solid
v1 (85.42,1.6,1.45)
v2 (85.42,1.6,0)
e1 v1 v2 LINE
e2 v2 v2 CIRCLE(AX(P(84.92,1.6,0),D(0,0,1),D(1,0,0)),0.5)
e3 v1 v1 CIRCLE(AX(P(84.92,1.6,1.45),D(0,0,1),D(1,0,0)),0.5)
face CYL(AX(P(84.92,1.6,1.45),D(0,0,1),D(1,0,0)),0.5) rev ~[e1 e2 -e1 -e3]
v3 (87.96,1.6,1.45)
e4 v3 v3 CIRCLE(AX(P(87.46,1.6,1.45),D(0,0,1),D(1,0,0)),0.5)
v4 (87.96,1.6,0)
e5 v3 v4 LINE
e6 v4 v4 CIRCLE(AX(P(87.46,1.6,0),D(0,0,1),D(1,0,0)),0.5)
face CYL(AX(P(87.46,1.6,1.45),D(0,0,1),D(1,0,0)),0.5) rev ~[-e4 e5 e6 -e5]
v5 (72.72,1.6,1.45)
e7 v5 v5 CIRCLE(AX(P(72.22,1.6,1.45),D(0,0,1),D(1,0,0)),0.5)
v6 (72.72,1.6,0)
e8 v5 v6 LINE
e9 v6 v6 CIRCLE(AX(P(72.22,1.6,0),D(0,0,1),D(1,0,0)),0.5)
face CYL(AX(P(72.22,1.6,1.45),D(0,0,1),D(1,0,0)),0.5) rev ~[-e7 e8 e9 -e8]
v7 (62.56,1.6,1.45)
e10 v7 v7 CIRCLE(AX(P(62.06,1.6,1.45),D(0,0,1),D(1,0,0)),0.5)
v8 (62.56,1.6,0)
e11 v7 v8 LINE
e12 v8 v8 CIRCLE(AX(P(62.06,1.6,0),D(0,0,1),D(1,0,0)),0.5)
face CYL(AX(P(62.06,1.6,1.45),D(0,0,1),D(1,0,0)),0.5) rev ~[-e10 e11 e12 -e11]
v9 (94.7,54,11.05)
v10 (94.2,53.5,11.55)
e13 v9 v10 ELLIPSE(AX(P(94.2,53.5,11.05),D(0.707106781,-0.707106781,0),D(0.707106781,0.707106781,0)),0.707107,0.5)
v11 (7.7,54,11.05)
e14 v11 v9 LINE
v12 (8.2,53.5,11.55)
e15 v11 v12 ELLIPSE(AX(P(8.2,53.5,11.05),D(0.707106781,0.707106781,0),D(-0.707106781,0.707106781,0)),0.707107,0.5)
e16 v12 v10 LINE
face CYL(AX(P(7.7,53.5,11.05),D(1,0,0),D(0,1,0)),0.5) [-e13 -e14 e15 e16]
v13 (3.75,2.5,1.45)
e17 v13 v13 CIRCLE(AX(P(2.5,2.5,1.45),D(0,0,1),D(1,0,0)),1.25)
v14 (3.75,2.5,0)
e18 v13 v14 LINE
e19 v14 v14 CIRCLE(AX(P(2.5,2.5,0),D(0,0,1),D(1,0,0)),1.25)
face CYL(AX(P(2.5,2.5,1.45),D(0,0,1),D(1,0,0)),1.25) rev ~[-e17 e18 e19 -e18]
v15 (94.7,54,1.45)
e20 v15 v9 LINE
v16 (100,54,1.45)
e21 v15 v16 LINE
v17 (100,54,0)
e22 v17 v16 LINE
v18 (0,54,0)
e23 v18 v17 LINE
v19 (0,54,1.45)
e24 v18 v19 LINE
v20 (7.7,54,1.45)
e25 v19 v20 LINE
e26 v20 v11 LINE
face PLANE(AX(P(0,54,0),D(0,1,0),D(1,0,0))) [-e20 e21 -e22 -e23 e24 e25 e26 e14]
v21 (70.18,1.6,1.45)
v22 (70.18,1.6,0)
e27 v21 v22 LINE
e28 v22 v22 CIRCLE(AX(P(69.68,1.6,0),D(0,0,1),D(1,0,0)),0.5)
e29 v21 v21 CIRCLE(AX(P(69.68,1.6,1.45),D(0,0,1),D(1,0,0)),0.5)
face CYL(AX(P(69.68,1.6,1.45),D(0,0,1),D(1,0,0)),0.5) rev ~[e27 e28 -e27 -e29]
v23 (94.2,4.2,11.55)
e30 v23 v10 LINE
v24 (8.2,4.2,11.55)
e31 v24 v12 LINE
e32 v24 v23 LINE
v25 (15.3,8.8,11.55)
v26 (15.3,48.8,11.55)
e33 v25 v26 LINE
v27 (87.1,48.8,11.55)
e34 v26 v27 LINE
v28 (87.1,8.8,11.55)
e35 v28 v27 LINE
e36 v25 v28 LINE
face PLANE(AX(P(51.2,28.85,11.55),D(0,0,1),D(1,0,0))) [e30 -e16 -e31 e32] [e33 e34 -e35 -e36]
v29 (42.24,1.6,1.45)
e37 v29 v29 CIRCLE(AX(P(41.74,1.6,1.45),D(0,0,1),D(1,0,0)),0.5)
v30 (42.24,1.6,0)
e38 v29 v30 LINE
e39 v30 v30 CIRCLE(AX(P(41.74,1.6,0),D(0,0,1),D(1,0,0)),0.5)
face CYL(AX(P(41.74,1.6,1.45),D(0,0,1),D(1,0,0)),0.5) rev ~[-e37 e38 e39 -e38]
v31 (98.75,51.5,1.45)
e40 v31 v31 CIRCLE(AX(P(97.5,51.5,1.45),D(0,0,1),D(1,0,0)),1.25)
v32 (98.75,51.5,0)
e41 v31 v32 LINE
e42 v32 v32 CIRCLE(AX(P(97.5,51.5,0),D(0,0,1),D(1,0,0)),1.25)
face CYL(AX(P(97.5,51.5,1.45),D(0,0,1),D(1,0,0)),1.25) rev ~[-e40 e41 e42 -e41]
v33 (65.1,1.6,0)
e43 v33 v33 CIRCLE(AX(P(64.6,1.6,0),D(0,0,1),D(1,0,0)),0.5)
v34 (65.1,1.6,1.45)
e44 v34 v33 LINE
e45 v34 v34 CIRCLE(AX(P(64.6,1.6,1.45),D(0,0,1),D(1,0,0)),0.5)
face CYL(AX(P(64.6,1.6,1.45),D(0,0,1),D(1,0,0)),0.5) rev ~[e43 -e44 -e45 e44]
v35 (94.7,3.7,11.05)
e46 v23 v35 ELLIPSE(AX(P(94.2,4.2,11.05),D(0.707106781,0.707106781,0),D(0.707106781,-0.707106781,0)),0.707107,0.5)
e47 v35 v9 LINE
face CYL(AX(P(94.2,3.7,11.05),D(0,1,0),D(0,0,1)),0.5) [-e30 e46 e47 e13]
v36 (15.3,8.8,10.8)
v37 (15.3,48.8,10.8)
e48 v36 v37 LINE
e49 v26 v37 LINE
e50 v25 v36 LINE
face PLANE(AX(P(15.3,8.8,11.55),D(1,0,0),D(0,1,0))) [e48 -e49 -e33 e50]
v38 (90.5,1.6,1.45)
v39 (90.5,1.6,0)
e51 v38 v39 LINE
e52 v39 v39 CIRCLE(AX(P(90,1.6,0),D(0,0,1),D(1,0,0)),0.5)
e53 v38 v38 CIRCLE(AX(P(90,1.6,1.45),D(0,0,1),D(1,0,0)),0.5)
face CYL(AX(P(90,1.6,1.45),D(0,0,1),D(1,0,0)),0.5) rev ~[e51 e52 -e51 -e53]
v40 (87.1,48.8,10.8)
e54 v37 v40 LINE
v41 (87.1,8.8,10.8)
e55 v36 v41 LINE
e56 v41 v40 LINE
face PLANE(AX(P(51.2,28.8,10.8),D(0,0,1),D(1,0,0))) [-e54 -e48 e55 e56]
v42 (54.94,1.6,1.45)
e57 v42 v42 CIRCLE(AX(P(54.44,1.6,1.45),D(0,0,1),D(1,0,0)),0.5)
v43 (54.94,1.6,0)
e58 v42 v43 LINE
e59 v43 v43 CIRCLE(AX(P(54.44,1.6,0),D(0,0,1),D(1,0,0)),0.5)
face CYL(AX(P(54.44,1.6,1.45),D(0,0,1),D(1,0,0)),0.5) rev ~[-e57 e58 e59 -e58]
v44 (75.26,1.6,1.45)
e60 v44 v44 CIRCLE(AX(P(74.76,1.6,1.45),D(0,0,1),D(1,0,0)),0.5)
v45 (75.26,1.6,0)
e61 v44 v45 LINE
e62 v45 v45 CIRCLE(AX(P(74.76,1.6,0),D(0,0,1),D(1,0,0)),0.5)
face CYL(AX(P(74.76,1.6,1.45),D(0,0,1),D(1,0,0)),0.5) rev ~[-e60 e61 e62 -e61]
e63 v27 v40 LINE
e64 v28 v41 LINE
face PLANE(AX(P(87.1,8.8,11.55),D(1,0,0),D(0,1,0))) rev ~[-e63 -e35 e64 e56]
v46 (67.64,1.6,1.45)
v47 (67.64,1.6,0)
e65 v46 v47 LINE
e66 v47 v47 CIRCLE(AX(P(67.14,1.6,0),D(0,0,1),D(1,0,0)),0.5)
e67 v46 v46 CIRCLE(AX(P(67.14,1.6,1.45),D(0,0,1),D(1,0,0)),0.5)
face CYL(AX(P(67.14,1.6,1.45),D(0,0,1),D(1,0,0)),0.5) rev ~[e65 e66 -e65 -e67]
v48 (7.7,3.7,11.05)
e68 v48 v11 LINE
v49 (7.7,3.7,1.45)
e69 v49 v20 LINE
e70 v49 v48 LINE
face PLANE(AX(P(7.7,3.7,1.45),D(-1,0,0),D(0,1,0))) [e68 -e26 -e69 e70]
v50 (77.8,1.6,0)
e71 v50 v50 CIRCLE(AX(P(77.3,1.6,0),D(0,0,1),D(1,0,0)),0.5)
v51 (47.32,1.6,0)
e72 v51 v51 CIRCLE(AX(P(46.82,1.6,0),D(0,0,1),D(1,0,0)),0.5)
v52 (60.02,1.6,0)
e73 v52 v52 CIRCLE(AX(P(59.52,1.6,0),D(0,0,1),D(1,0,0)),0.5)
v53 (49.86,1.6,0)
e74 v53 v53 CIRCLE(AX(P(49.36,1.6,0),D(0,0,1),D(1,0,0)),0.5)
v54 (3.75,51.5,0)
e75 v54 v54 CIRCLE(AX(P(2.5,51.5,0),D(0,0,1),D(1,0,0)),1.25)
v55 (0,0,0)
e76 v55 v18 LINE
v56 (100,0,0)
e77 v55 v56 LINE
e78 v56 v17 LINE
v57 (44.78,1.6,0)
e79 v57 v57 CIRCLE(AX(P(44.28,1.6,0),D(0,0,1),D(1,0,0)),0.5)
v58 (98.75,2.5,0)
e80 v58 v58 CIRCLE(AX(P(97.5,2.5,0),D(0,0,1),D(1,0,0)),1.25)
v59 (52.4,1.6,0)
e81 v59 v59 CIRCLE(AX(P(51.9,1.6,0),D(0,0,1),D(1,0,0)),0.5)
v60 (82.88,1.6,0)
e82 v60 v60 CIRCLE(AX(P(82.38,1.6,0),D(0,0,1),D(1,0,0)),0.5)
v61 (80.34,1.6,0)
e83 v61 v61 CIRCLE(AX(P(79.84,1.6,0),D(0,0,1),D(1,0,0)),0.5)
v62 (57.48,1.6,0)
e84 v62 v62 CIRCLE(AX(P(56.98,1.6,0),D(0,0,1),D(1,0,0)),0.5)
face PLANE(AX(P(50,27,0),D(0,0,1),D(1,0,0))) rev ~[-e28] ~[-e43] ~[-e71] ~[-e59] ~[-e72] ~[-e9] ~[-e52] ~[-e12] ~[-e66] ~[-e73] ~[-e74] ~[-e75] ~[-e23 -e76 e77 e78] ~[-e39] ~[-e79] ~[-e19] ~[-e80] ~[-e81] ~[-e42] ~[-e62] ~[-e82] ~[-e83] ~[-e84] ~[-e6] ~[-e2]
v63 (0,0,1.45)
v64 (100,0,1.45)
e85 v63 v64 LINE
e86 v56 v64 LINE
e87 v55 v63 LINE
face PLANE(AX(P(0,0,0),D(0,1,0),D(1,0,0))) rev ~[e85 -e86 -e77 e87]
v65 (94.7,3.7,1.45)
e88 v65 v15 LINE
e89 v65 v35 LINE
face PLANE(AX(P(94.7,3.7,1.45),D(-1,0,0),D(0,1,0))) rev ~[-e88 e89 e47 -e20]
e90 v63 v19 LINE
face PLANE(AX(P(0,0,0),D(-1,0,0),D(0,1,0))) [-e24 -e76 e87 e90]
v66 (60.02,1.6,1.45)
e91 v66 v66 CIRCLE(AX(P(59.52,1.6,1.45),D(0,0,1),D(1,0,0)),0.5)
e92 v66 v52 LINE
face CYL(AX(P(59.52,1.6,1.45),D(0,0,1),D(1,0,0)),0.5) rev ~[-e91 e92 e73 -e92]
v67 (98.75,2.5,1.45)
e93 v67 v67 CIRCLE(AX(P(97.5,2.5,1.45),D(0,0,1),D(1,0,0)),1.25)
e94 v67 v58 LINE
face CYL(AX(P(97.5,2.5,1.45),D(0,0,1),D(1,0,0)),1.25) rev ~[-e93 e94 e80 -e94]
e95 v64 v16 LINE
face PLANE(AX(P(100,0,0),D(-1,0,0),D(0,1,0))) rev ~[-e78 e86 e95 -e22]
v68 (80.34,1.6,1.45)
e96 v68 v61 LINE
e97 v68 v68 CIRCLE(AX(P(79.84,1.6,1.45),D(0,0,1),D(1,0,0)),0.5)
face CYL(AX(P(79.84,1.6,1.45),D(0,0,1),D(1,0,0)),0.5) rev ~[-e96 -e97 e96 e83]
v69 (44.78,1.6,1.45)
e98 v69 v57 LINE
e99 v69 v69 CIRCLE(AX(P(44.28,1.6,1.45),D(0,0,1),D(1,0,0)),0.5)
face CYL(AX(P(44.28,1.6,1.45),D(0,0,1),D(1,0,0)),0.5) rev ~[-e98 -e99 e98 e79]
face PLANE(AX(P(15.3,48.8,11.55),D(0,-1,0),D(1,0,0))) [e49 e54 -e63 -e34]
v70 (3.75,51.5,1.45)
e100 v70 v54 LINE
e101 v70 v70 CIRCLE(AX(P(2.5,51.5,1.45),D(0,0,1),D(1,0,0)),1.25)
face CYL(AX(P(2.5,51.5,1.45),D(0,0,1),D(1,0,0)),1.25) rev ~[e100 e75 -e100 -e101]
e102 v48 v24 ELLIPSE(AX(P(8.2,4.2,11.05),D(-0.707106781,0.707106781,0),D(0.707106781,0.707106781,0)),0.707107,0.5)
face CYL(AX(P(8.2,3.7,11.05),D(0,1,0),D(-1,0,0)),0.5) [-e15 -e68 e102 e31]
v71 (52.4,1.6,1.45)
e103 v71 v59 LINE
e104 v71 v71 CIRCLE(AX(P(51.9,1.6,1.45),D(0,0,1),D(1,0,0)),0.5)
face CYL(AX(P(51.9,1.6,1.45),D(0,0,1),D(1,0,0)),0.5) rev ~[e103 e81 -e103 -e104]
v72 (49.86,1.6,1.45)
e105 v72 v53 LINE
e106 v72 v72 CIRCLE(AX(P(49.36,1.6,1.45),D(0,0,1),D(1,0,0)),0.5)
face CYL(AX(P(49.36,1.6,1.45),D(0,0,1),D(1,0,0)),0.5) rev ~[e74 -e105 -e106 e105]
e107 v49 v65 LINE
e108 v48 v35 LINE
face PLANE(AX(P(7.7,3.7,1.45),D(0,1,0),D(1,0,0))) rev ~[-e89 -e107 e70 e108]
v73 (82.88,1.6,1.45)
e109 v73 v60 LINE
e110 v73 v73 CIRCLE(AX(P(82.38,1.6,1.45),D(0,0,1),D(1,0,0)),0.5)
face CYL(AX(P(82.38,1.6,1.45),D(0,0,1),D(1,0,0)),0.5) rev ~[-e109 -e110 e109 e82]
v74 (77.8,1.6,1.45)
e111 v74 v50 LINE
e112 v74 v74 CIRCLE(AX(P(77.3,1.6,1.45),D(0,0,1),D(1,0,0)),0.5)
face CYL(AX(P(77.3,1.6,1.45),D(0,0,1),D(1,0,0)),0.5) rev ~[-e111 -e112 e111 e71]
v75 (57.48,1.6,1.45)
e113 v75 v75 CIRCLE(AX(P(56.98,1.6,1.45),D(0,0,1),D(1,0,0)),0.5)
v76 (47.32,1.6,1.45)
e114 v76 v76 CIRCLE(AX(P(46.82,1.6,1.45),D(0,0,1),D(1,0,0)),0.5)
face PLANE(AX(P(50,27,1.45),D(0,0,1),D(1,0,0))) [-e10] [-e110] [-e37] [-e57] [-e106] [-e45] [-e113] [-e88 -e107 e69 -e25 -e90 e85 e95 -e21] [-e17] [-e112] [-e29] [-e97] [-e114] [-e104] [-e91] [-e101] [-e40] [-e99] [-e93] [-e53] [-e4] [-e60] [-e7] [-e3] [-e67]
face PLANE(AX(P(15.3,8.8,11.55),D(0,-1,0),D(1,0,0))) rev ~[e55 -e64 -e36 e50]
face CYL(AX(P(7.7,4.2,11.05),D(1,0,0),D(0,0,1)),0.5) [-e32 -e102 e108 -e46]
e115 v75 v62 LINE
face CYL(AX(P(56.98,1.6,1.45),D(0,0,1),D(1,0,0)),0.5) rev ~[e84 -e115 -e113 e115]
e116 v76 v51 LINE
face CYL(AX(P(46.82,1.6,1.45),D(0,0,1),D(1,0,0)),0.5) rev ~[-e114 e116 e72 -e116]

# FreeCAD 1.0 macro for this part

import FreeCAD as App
import Part
import Sketcher
Q = App.Units.Quantity


def edges_at(feature, points):
    """Names of the edges that pass closest to the given points."""
    edges = feature.Shape.Edges
    near = lambda p: min(range(len(edges)), key=lambda i: edges[i].distToShape(Part.Vertex(*p))[0])
    return sorted({f"Edge{near(p) + 1}" for p in points})

doc = App.newDocument("Part")
body = doc.addObject("PartDesign::Body", "Body")

sketch1 = doc.addObject("Sketcher::SketchObject", "Sketch")
body.addObject(sketch1)
sketch1.AttachmentSupport = (doc.XY_Plane, [""])
sketch1.MapMode = "FlatFace"
sketch1.addGeometry([
    Part.LineSegment(App.Vector(0, 54, 0), App.Vector(0, 0, 0)),
    Part.LineSegment(App.Vector(0, 0, 0), App.Vector(100, 0, 0)),
    Part.LineSegment(App.Vector(100, 0, 0), App.Vector(100, 54, 0)),
    Part.LineSegment(App.Vector(100, 54, 0), App.Vector(0, 54, 0)),
], False)
sketch1.addConstraint([
    Sketcher.Constraint("Coincident", 0, 2, 1, 1),
    Sketcher.Constraint("Coincident", 1, 2, 2, 1),
    Sketcher.Constraint("Coincident", 2, 2, 3, 1),
    Sketcher.Constraint("Coincident", 3, 2, 0, 1),
    Sketcher.Constraint("Vertical", 0),
    Sketcher.Constraint("Horizontal", 1),
    Sketcher.Constraint("Vertical", 2),
    Sketcher.Constraint("Horizontal", 3),
    Sketcher.Constraint("Coincident", 0, 2, -1, 1),
    Sketcher.Constraint("DistanceX", 1, 1, 1, 2, Q("100 mm")),
    Sketcher.Constraint("DistanceY", 0, 2, 0, 1, Q("54 mm")),
])
pad1 = doc.addObject("PartDesign::Pad", "Pad")
body.addObject(pad1)
pad1.Profile = sketch1
pad1.Length = 1.45

sketch2 = doc.addObject("Sketcher::SketchObject", "Sketch001")
body.addObject(sketch2)
sketch2.AttachmentSupport = (doc.XY_Plane, [""])
sketch2.MapMode = "FlatFace"
sketch2.AttachmentOffset = App.Placement(App.Vector(0, 0, 1.45), App.Rotation())
sketch2.addGeometry([
    Part.LineSegment(App.Vector(8, 54, 0), App.Vector(8, 4, 0)),
    Part.LineSegment(App.Vector(8, 4, 0), App.Vector(95, 4, 0)),
    Part.LineSegment(App.Vector(95, 4, 0), App.Vector(95, 54, 0)),
    Part.LineSegment(App.Vector(95, 54, 0), App.Vector(8, 54, 0)),
], False)
sketch2.addConstraint([
    Sketcher.Constraint("Coincident", 0, 2, 1, 1),
    Sketcher.Constraint("Coincident", 1, 2, 2, 1),
    Sketcher.Constraint("Coincident", 2, 2, 3, 1),
    Sketcher.Constraint("Coincident", 3, 2, 0, 1),
    Sketcher.Constraint("Vertical", 0),
    Sketcher.Constraint("Horizontal", 1),
    Sketcher.Constraint("Vertical", 2),
    Sketcher.Constraint("Horizontal", 3),
    Sketcher.Constraint("DistanceX", 1, 1, 1, 2, Q("87 mm")),
    Sketcher.Constraint("DistanceY", 0, 2, 0, 1, Q("50.3 mm")),
    Sketcher.Constraint("DistanceY", -1, 1, 2, 2, Q("54 mm")),
    Sketcher.Constraint("DistanceX", -1, 1, 0, 2, Q("7.7 mm")),
])
pad2 = doc.addObject("PartDesign::Pad", "Pad001")
body.addObject(pad2)
pad2.Profile = sketch2
pad2.Length = 10.1

sketch3 = doc.addObject("Sketcher::SketchObject", "Sketch002")
body.addObject(sketch3)
sketch3.AttachmentSupport = (doc.XY_Plane, [""])
sketch3.MapMode = "FlatFace"
sketch3.AttachmentOffset = App.Placement(App.Vector(0, 0, 1.45), App.Rotation())
sketch3.addGeometry([
    Part.Circle(App.Vector(2.5, 51.5, 0), App.Vector(0, 0, 1), 1.2),
    Part.Circle(App.Vector(2.5, 2.5, 0), App.Vector(0, 0, 1), 1.2),
    Part.Circle(App.Vector(97.5, 2.5, 0), App.Vector(0, 0, 1), 1.2),
    Part.Circle(App.Vector(97.5, 51.5, 0), App.Vector(0, 0, 1), 1.2),
], False)
sketch3.addConstraint([
    Sketcher.Constraint("Equal", 0, 1),
    Sketcher.Constraint("Equal", 1, 2),
    Sketcher.Constraint("Equal", 2, 3),
    Sketcher.Constraint("Horizontal", 1, 3, 2, 3),
    Sketcher.Constraint("Horizontal", 0, 3, 3, 3),
    Sketcher.Constraint("Vertical", 0, 3, 1, 3),
    Sketcher.Constraint("Vertical", 2, 3, 3, 3),
    Sketcher.Constraint("Diameter", 0, Q("2.5 mm")),
    Sketcher.Constraint("DistanceY", 1, 3, 0, 3, Q("49 mm")),
    Sketcher.Constraint("DistanceX", 1, 3, 2, 3, Q("95 mm")),
    Sketcher.Constraint("DistanceX", -1, 1, 0, 3, Q("2.5 mm")),
    Sketcher.Constraint("DistanceY", -1, 1, 0, 3, Q("51.5 mm")),
])
pocket1 = doc.addObject("PartDesign::Pocket", "Pocket")
body.addObject(pocket1)
pocket1.Profile = sketch3
pocket1.Type = "ThroughAll"
doc.recompute()

fillet = doc.addObject("PartDesign::Fillet", "Fillet")
body.addObject(fillet)
fillet.Base = (pocket1, edges_at(pocket1, [
    (7.7, 28.85, 11.55),
    (51.2, 54, 11.55),
    (51.2, 3.7, 11.55),
    (94.7, 28.85, 11.55),
]))
fillet.Radius = 0.5

sketch4 = doc.addObject("Sketcher::SketchObject", "Sketch003")
body.addObject(sketch4)
sketch4.AttachmentSupport = (doc.XY_Plane, [""])
sketch4.MapMode = "FlatFace"
sketch4.AttachmentOffset = App.Placement(App.Vector(0, 0, 11.55), App.Rotation())
sketch4.addGeometry([
    Part.LineSegment(App.Vector(15, 49, 0), App.Vector(15, 9, 0)),
    Part.LineSegment(App.Vector(15, 9, 0), App.Vector(87, 9, 0)),
    Part.LineSegment(App.Vector(87, 9, 0), App.Vector(87, 49, 0)),
    Part.LineSegment(App.Vector(87, 49, 0), App.Vector(15, 49, 0)),
], False)
sketch4.addConstraint([
    Sketcher.Constraint("Coincident", 0, 2, 1, 1),
    Sketcher.Constraint("Coincident", 1, 2, 2, 1),
    Sketcher.Constraint("Coincident", 2, 2, 3, 1),
    Sketcher.Constraint("Coincident", 3, 2, 0, 1),
    Sketcher.Constraint("Vertical", 0),
    Sketcher.Constraint("Horizontal", 1),
    Sketcher.Constraint("Vertical", 2),
    Sketcher.Constraint("Horizontal", 3),
    Sketcher.Constraint("DistanceY", 0, 2, 0, 1, Q("40 mm")),
    Sketcher.Constraint("DistanceX", 1, 1, 1, 2, Q("71.8 mm")),
    Sketcher.Constraint("DistanceX", -1, 1, 0, 2, Q("15.3 mm")),
    Sketcher.Constraint("DistanceY", -1, 1, 0, 2, Q("8.8 mm")),
])
pocket2 = doc.addObject("PartDesign::Pocket", "Pocket001")
body.addObject(pocket2)
pocket2.Profile = sketch4
pocket2.Length = 0.75

sketch5 = doc.addObject("Sketcher::SketchObject", "Sketch004")
body.addObject(sketch5)
sketch5.AttachmentSupport = (doc.XY_Plane, [""])
sketch5.MapMode = "FlatFace"
sketch5.AttachmentOffset = App.Placement(App.Vector(0, 0, 1.45), App.Rotation())
sketch5.addGeometry([
    Part.Circle(App.Vector(90, 1.6, 0), App.Vector(0, 0, 1), 0.5),
    Part.Circle(App.Vector(87.5, 1.6, 0), App.Vector(0, 0, 1), 0.5),
    Part.Circle(App.Vector(84.9, 1.6, 0), App.Vector(0, 0, 1), 0.5),
    Part.Circle(App.Vector(82.4, 1.6, 0), App.Vector(0, 0, 1), 0.5),
    Part.Circle(App.Vector(79.8, 1.6, 0), App.Vector(0, 0, 1), 0.5),
    Part.Circle(App.Vector(77.3, 1.6, 0), App.Vector(0, 0, 1), 0.5),
    Part.Circle(App.Vector(74.8, 1.6, 0), App.Vector(0, 0, 1), 0.5),
    Part.Circle(App.Vector(72.2, 1.6, 0), App.Vector(0, 0, 1), 0.5),
    Part.Circle(App.Vector(69.7, 1.6, 0), App.Vector(0, 0, 1), 0.5),
    Part.Circle(App.Vector(67.1, 1.6, 0), App.Vector(0, 0, 1), 0.5),
    Part.Circle(App.Vector(64.6, 1.6, 0), App.Vector(0, 0, 1), 0.5),
    Part.Circle(App.Vector(62.1, 1.6, 0), App.Vector(0, 0, 1), 0.5),
    Part.Circle(App.Vector(59.5, 1.6, 0), App.Vector(0, 0, 1), 0.5),
    Part.Circle(App.Vector(57, 1.6, 0), App.Vector(0, 0, 1), 0.5),
    Part.Circle(App.Vector(54.4, 1.6, 0), App.Vector(0, 0, 1), 0.5),
    Part.Circle(App.Vector(51.9, 1.6, 0), App.Vector(0, 0, 1), 0.5),
    Part.Circle(App.Vector(49.4, 1.6, 0), App.Vector(0, 0, 1), 0.5),
    Part.Circle(App.Vector(46.8, 1.6, 0), App.Vector(0, 0, 1), 0.5),
    Part.Circle(App.Vector(44.3, 1.6, 0), App.Vector(0, 0, 1), 0.5),
    Part.Circle(App.Vector(41.7, 1.6, 0), App.Vector(0, 0, 1), 0.5),
], False)
sketch5.addConstraint([
    Sketcher.Constraint("Equal", 0, 1),
    Sketcher.Constraint("Equal", 1, 2),
    Sketcher.Constraint("Equal", 2, 3),
    Sketcher.Constraint("Equal", 3, 4),
    Sketcher.Constraint("Equal", 4, 5),
    Sketcher.Constraint("Equal", 5, 6),
    Sketcher.Constraint("Equal", 6, 7),
    Sketcher.Constraint("Equal", 7, 8),
    Sketcher.Constraint("Equal", 8, 9),
    Sketcher.Constraint("Equal", 9, 10),
    Sketcher.Constraint("Equal", 10, 11),
    Sketcher.Constraint("Equal", 11, 12),
    Sketcher.Constraint("Equal", 12, 13),
    Sketcher.Constraint("Equal", 13, 14),
    Sketcher.Constraint("Equal", 14, 15),
    Sketcher.Constraint("Equal", 15, 16),
    Sketcher.Constraint("Equal", 16, 17),
    Sketcher.Constraint("Equal", 17, 18),
    Sketcher.Constraint("Equal", 18, 19),
    Sketcher.Constraint("Horizontal", 0, 3, 1, 3),
    Sketcher.Constraint("Horizontal", 1, 3, 2, 3),
    Sketcher.Constraint("Horizontal", 2, 3, 3, 3),
    Sketcher.Constraint("Horizontal", 3, 3, 4, 3),
    Sketcher.Constraint("Horizontal", 4, 3, 5, 3),
    Sketcher.Constraint("Horizontal", 5, 3, 6, 3),
    Sketcher.Constraint("Horizontal", 6, 3, 7, 3),
    Sketcher.Constraint("Horizontal", 7, 3, 8, 3),
    Sketcher.Constraint("Horizontal", 8, 3, 9, 3),
    Sketcher.Constraint("Horizontal", 9, 3, 10, 3),
    Sketcher.Constraint("Horizontal", 10, 3, 11, 3),
    Sketcher.Constraint("Horizontal", 11, 3, 12, 3),
    Sketcher.Constraint("Horizontal", 12, 3, 13, 3),
    Sketcher.Constraint("Horizontal", 13, 3, 14, 3),
    Sketcher.Constraint("Horizontal", 14, 3, 15, 3),
    Sketcher.Constraint("Horizontal", 15, 3, 16, 3),
    Sketcher.Constraint("Horizontal", 16, 3, 17, 3),
    Sketcher.Constraint("Horizontal", 17, 3, 18, 3),
    Sketcher.Constraint("Horizontal", 18, 3, 19, 3),
    Sketcher.Constraint("Diameter", 0, Q("1 mm")),
    Sketcher.Constraint("DistanceX", -1, 1, 0, 3, Q("90 mm")),
    Sketcher.Constraint("DistanceY", -1, 1, 0, 3, Q("1.6 mm")),
    Sketcher.Constraint("DistanceX", -1, 1, 5, 3, Q("77.3 mm")),
    Sketcher.Constraint("DistanceX", -1, 1, 10, 3, Q("64.6 mm")),
    Sketcher.Constraint("DistanceX", -1, 1, 15, 3, Q("51.9 mm")),
    Sketcher.Constraint("DistanceX", 6, 3, 1, 3, Q("12.7 mm")),
    Sketcher.Constraint("DistanceX", 7, 3, 2, 3, Q("12.7 mm")),
    Sketcher.Constraint("DistanceX", 8, 3, 3, 3, Q("12.7 mm")),
    Sketcher.Constraint("DistanceX", 9, 3, 4, 3, Q("12.7 mm")),
    Sketcher.Constraint("DistanceX", 11, 3, 6, 3, Q("12.7 mm")),
    Sketcher.Constraint("DistanceX", 12, 3, 7, 3, Q("12.7 mm")),
    Sketcher.Constraint("DistanceX", 13, 3, 8, 3, Q("12.7 mm")),
    Sketcher.Constraint("DistanceX", 14, 3, 9, 3, Q("12.7 mm")),
    Sketcher.Constraint("DistanceX", 16, 3, 11, 3, Q("12.7 mm")),
    Sketcher.Constraint("DistanceX", 17, 3, 12, 3, Q("12.7 mm")),
    Sketcher.Constraint("DistanceX", 18, 3, 13, 3, Q("12.7 mm")),
    Sketcher.Constraint("DistanceX", 19, 3, 14, 3, Q("12.7 mm")),
    Sketcher.Constraint("DistanceX", -1, 1, 1, 3, Q("87.46 mm")),
    Sketcher.Constraint("DistanceX", -1, 1, 2, 3, Q("84.92 mm")),
    Sketcher.Constraint("DistanceX", -1, 1, 3, 3, Q("82.38 mm")),
    Sketcher.Constraint("DistanceX", -1, 1, 4, 3, Q("79.84 mm")),
])
pocket3 = doc.addObject("PartDesign::Pocket", "Pocket002")
body.addObject(pocket3)
pocket3.Profile = sketch5
pocket3.Type = "ThroughAll"

doc.recompute()
